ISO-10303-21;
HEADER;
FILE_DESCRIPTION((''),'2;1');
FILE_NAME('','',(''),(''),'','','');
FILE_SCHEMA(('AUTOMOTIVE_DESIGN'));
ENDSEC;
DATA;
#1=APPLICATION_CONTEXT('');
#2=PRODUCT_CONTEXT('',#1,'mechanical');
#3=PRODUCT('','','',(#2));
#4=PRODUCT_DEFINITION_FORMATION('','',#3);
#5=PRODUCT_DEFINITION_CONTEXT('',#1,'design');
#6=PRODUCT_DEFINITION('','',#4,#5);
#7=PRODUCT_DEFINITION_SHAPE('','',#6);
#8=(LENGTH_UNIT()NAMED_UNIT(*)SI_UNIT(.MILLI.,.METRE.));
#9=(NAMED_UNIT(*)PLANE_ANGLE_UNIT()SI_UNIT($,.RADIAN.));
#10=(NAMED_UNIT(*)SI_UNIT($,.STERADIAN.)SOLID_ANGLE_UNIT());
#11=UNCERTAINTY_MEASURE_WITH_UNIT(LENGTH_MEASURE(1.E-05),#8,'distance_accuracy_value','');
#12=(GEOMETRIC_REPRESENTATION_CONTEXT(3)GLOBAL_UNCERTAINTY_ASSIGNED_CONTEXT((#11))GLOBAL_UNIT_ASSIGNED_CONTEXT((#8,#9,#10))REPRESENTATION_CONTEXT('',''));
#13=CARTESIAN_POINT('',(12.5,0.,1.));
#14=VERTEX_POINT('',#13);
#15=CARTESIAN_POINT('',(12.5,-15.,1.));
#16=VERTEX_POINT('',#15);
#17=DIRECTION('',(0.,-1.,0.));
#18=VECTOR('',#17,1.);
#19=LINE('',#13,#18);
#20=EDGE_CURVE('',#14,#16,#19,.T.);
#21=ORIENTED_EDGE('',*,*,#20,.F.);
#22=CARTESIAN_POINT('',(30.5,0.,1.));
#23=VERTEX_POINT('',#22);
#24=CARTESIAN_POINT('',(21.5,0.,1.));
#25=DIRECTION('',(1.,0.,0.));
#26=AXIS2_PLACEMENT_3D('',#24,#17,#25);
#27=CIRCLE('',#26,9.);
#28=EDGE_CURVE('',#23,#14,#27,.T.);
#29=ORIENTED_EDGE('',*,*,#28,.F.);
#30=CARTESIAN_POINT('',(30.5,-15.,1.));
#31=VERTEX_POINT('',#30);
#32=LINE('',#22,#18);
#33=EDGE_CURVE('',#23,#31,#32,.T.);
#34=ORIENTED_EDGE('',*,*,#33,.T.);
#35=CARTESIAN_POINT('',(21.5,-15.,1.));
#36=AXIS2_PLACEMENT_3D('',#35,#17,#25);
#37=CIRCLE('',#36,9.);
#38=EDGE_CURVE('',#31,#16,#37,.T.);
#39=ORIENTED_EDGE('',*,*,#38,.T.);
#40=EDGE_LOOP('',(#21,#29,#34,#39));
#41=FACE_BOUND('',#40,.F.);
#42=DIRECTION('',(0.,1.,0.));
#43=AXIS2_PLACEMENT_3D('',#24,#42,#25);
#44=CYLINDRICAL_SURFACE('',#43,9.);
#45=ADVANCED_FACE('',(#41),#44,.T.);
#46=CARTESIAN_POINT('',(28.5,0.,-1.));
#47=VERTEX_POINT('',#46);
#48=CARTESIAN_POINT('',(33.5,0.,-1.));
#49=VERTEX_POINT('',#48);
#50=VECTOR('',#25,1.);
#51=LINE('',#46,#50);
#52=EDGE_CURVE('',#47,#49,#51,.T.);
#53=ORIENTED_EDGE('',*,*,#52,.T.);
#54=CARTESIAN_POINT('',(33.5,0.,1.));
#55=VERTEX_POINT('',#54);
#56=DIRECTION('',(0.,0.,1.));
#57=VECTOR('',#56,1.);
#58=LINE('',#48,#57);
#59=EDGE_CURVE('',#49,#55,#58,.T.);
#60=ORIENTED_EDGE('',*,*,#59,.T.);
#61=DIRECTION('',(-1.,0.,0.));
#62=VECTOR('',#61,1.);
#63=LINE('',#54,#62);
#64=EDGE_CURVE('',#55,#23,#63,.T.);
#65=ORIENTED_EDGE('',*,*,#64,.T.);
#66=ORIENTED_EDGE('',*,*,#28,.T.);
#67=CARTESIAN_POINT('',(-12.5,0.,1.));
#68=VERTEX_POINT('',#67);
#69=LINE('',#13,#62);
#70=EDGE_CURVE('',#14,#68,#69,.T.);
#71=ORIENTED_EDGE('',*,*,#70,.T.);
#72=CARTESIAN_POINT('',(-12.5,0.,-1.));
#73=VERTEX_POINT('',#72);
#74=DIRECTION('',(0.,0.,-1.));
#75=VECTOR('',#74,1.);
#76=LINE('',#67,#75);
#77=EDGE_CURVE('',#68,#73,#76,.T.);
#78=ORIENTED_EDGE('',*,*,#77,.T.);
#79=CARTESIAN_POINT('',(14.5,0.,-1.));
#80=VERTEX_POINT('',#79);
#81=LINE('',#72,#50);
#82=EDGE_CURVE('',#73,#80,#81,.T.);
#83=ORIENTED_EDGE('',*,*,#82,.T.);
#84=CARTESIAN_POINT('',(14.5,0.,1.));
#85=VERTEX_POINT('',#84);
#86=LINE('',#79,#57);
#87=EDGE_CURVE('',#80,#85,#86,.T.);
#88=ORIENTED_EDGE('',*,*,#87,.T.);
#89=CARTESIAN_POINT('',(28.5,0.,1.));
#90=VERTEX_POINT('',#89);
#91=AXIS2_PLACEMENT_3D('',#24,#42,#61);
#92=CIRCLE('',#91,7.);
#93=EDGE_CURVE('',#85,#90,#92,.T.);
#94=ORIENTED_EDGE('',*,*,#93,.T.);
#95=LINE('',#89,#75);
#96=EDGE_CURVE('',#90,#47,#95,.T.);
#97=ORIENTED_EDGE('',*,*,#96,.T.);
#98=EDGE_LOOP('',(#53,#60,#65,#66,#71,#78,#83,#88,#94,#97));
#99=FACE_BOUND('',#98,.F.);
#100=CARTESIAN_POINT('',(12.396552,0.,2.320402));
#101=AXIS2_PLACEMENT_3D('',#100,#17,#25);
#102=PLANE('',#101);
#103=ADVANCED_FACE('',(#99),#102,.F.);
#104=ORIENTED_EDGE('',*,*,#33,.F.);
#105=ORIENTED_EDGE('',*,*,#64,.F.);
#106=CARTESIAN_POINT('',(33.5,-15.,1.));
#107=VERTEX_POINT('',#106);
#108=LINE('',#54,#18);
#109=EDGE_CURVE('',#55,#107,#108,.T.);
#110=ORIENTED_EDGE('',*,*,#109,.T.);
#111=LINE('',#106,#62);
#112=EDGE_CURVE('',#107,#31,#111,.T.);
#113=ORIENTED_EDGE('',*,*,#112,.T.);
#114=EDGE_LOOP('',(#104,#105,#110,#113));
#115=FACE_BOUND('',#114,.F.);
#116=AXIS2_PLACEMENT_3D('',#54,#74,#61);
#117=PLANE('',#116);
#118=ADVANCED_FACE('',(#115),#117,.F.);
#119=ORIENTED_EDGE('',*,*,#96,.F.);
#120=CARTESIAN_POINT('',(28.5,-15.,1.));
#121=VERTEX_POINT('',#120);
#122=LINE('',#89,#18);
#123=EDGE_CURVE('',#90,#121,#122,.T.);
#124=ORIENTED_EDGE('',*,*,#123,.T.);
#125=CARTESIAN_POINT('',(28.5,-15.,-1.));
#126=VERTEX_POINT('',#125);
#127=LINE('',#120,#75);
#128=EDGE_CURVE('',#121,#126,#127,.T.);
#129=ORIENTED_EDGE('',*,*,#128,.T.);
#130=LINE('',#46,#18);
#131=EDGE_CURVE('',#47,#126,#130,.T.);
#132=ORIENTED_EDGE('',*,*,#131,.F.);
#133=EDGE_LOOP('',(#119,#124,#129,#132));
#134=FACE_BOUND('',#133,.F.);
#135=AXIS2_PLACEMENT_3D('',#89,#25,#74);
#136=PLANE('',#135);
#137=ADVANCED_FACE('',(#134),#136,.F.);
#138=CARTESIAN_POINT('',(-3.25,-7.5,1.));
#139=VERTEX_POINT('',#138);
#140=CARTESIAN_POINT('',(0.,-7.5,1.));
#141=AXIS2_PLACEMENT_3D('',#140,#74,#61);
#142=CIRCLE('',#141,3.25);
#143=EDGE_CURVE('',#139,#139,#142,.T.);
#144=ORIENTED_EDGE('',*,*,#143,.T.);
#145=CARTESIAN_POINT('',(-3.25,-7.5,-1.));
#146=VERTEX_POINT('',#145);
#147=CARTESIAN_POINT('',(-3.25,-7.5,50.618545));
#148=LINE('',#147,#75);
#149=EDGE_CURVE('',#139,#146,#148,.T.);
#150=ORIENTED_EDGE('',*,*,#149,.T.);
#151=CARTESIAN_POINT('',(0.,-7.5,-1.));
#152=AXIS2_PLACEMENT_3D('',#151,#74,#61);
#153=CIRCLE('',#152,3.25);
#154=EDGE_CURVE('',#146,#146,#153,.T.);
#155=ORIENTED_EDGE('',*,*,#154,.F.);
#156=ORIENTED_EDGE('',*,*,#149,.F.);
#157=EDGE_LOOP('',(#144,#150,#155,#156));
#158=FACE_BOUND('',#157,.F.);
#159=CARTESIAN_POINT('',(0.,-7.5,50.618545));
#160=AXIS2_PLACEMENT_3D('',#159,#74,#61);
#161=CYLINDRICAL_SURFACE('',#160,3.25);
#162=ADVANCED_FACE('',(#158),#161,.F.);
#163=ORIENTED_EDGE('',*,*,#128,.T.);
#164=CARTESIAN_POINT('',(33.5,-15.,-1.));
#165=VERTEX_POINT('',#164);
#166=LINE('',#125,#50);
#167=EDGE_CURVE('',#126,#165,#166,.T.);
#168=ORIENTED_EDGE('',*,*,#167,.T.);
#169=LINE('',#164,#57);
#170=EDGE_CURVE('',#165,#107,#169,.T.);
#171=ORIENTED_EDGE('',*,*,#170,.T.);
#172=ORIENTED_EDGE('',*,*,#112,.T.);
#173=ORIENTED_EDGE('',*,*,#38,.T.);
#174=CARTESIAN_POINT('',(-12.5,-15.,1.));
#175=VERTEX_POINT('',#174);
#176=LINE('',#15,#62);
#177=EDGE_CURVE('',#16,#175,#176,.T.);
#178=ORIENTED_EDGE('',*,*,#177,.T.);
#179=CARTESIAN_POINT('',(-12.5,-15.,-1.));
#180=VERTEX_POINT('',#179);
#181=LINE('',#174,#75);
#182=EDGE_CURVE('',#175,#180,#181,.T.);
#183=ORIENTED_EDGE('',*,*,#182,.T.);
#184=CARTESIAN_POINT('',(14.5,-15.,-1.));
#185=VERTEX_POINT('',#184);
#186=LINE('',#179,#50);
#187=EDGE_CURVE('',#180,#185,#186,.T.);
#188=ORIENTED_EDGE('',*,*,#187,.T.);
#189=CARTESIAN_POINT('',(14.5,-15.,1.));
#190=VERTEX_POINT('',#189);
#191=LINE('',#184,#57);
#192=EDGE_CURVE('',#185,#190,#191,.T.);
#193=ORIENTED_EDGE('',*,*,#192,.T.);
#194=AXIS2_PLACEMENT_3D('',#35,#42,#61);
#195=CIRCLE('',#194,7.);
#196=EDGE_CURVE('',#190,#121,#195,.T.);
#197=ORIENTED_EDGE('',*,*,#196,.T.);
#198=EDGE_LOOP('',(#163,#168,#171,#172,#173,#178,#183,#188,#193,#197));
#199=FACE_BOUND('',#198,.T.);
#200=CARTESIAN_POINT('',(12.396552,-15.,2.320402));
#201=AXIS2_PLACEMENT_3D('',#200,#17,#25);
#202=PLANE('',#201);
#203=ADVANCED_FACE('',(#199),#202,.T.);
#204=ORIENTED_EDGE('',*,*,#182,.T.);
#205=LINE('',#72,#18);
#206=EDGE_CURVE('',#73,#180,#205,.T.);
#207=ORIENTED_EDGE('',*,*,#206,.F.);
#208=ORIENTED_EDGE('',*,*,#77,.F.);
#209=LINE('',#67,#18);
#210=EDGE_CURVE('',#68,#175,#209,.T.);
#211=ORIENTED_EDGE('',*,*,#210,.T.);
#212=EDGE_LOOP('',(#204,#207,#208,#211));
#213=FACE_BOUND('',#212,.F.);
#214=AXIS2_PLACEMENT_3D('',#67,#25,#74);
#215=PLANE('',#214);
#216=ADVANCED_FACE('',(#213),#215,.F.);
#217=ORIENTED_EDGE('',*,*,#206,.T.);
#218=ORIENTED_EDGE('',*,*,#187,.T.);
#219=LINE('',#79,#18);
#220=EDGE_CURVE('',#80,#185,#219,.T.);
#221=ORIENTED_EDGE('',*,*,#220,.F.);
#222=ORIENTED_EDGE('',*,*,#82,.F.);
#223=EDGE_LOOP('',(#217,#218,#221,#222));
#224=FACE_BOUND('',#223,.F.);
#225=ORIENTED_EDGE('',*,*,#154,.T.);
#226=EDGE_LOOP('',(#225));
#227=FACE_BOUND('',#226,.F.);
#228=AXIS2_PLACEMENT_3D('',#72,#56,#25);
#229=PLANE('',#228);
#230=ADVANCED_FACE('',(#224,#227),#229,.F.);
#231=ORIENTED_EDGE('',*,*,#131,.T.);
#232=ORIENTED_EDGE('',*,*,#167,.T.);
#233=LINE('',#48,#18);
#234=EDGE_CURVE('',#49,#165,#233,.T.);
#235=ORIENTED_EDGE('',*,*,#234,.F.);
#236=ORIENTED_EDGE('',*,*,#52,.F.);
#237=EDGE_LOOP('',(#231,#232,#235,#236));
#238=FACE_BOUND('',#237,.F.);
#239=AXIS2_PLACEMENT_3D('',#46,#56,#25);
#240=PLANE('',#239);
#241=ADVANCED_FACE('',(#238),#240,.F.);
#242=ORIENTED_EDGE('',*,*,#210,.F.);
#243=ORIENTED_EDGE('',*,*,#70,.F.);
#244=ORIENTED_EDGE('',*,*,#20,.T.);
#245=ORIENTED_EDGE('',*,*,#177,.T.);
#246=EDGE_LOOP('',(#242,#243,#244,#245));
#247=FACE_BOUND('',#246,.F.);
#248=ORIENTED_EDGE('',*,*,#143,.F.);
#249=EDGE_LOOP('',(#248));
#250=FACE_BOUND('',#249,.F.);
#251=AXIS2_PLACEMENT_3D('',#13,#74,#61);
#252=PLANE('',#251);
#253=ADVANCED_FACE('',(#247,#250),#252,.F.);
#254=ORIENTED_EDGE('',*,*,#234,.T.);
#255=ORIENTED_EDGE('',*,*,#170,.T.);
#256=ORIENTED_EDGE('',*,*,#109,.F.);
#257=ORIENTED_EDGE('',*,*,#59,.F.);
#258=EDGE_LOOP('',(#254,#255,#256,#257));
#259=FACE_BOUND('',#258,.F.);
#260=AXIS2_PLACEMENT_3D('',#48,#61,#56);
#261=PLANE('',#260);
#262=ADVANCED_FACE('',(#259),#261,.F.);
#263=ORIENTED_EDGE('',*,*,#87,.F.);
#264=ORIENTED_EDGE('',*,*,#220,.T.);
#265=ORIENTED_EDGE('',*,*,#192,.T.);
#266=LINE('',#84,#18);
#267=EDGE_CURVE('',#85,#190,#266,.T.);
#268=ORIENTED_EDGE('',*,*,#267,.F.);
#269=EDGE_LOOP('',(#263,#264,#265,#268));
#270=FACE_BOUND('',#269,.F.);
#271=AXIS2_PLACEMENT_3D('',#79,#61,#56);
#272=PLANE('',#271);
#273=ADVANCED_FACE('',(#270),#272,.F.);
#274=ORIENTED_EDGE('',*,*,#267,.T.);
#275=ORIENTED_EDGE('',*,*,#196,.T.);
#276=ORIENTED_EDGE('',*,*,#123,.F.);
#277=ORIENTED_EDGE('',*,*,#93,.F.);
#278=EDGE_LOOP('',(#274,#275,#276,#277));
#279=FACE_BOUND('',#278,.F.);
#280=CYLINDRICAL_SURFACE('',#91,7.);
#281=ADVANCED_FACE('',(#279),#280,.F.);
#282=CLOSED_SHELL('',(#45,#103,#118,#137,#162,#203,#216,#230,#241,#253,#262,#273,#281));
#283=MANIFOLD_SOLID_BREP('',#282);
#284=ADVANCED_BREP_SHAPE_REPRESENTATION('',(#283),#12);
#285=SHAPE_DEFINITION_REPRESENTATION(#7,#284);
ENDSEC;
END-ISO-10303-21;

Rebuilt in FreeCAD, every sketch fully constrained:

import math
import FreeCAD as App
import Part
import Sketcher

V = App.Vector

doc = App.newDocument("Part")
body = doc.addObject("PartDesign::Body", "Body")

# Sketch on XZ plane
sketch1 = body.newObject("Sketcher::SketchObject", "Sketch")
sketch1.AttachmentSupport = (doc.getObject("XZ_Plane"), [""])
sketch1.MapMode = "FlatFace"
sketch1.addGeometry(Part.LineSegment(V(12.5, 1, 0), V(-12.5, 1, 0)), False)
sketch1.addGeometry(Part.LineSegment(V(-12.5, 1, 0), V(-12.5, -1, 0)), False)
sketch1.addGeometry(Part.LineSegment(V(-12.5, -1, 0), V(14.5, -1, 0)), False)
sketch1.addGeometry(Part.LineSegment(V(14.5, -1, 0), V(14.5, 1, 0)), False)
sketch1.addGeometry(Part.ArcOfCircle(Part.Circle(V(21.5, 1, 0), V(0, 0, 1), 7), math.radians(0), math.radians(180)), False)
sketch1.addGeometry(Part.LineSegment(V(28.5, 1, 0), V(28.5, -1, 0)), False)
sketch1.addGeometry(Part.LineSegment(V(28.5, -1, 0), V(33.5, -1, 0)), False)
sketch1.addGeometry(Part.LineSegment(V(33.5, -1, 0), V(33.5, 1, 0)), False)
sketch1.addGeometry(Part.LineSegment(V(33.5, 1, 0), V(30.5, 1, 0)), False)
sketch1.addGeometry(Part.ArcOfCircle(Part.Circle(V(21.5, 1, 0), V(0, 0, 1), 9), math.radians(0), math.radians(180)), False)
sketch1.addConstraint(Sketcher.Constraint("Coincident", 0, 2, 1, 1))
sketch1.addConstraint(Sketcher.Constraint("Coincident", 1, 2, 2, 1))
sketch1.addConstraint(Sketcher.Constraint("Coincident", 2, 2, 3, 1))
sketch1.addConstraint(Sketcher.Constraint("Tangent", 3, 2, 4, 2))
sketch1.addConstraint(Sketcher.Constraint("Tangent", 4, 1, 5, 1))
sketch1.addConstraint(Sketcher.Constraint("Coincident", 5, 2, 6, 1))
sketch1.addConstraint(Sketcher.Constraint("Coincident", 6, 2, 7, 1))
sketch1.addConstraint(Sketcher.Constraint("Coincident", 7, 2, 8, 1))
sketch1.addConstraint(Sketcher.Constraint("Coincident", 8, 2, 9, 1))
sketch1.addConstraint(Sketcher.Constraint("Coincident", 9, 2, 0, 1))
sketch1.addConstraint(Sketcher.Constraint("Horizontal", 0))
sketch1.addConstraint(Sketcher.Constraint("Vertical", 1))
sketch1.addConstraint(Sketcher.Constraint("Horizontal", 2))
sketch1.addConstraint(Sketcher.Constraint("Vertical", 3))
sketch1.addConstraint(Sketcher.Constraint("Vertical", 5))
sketch1.addConstraint(Sketcher.Constraint("Horizontal", 6))
sketch1.addConstraint(Sketcher.Constraint("Vertical", 7))
sketch1.addConstraint(Sketcher.Constraint("Horizontal", 8))
sketch1.addConstraint(Sketcher.Constraint("Coincident", 9, 3, 4, 3))
sketch1.addConstraint(Sketcher.Constraint("Symmetric", 1, 2, 9, 2, -1, 1))
sketch1.addConstraint(Sketcher.Constraint("Horizontal", 9, 3, 0, 2))
sketch1.addConstraint(Sketcher.Constraint("Horizontal", 2, 2, 5, 2))
sketch1.addConstraint(Sketcher.Constraint("Horizontal", 4, 1, 7, 2))
sketch1.addConstraint(Sketcher.Constraint("Radius", 4, 7.0))
sketch1.addConstraint(Sketcher.Constraint("Radius", 9, 9.0))
sketch1.addConstraint(Sketcher.Constraint("DistanceX", 0, 2, 0, 1, 25.0))
sketch1.addConstraint(Sketcher.Constraint("DistanceX", 6, 1, 6, 2, 5.0))
sketch1.addConstraint(Sketcher.Constraint("DistanceY", 1, 2, 1, 1, 2.0))
pad1 = body.newObject("PartDesign::Pad", "Pad")
pad1.Profile = sketch1
pad1.Length = 15

# Sketch on XY plane
sketch2 = body.newObject("Sketcher::SketchObject", "Sketch001")
sketch2.AttachmentSupport = (doc.getObject("XY_Plane"), [""])
sketch2.MapMode = "FlatFace"
sketch2.AttachmentOffset = App.Placement(V(0, 0, 1), App.Rotation())
sketch2.addGeometry(Part.Circle(V(0, -7.5, 0), V(0, 0, 1), 3.2), False)
sketch2.addConstraint(Sketcher.Constraint("PointOnObject", 0, 3, -2))
sketch2.addConstraint(Sketcher.Constraint("Diameter", 0, 6.5))
sketch2.addConstraint(Sketcher.Constraint("DistanceY", 0, 3, -1, 1, 7.5))
doc.recompute()
hole = body.newObject("PartDesign::Hole", "Hole")
hole.Profile = sketch2
hole.ThreadType = "None"
hole.Diameter = 6.5
hole.DepthType = "ThroughAll"

doc.recompute()
